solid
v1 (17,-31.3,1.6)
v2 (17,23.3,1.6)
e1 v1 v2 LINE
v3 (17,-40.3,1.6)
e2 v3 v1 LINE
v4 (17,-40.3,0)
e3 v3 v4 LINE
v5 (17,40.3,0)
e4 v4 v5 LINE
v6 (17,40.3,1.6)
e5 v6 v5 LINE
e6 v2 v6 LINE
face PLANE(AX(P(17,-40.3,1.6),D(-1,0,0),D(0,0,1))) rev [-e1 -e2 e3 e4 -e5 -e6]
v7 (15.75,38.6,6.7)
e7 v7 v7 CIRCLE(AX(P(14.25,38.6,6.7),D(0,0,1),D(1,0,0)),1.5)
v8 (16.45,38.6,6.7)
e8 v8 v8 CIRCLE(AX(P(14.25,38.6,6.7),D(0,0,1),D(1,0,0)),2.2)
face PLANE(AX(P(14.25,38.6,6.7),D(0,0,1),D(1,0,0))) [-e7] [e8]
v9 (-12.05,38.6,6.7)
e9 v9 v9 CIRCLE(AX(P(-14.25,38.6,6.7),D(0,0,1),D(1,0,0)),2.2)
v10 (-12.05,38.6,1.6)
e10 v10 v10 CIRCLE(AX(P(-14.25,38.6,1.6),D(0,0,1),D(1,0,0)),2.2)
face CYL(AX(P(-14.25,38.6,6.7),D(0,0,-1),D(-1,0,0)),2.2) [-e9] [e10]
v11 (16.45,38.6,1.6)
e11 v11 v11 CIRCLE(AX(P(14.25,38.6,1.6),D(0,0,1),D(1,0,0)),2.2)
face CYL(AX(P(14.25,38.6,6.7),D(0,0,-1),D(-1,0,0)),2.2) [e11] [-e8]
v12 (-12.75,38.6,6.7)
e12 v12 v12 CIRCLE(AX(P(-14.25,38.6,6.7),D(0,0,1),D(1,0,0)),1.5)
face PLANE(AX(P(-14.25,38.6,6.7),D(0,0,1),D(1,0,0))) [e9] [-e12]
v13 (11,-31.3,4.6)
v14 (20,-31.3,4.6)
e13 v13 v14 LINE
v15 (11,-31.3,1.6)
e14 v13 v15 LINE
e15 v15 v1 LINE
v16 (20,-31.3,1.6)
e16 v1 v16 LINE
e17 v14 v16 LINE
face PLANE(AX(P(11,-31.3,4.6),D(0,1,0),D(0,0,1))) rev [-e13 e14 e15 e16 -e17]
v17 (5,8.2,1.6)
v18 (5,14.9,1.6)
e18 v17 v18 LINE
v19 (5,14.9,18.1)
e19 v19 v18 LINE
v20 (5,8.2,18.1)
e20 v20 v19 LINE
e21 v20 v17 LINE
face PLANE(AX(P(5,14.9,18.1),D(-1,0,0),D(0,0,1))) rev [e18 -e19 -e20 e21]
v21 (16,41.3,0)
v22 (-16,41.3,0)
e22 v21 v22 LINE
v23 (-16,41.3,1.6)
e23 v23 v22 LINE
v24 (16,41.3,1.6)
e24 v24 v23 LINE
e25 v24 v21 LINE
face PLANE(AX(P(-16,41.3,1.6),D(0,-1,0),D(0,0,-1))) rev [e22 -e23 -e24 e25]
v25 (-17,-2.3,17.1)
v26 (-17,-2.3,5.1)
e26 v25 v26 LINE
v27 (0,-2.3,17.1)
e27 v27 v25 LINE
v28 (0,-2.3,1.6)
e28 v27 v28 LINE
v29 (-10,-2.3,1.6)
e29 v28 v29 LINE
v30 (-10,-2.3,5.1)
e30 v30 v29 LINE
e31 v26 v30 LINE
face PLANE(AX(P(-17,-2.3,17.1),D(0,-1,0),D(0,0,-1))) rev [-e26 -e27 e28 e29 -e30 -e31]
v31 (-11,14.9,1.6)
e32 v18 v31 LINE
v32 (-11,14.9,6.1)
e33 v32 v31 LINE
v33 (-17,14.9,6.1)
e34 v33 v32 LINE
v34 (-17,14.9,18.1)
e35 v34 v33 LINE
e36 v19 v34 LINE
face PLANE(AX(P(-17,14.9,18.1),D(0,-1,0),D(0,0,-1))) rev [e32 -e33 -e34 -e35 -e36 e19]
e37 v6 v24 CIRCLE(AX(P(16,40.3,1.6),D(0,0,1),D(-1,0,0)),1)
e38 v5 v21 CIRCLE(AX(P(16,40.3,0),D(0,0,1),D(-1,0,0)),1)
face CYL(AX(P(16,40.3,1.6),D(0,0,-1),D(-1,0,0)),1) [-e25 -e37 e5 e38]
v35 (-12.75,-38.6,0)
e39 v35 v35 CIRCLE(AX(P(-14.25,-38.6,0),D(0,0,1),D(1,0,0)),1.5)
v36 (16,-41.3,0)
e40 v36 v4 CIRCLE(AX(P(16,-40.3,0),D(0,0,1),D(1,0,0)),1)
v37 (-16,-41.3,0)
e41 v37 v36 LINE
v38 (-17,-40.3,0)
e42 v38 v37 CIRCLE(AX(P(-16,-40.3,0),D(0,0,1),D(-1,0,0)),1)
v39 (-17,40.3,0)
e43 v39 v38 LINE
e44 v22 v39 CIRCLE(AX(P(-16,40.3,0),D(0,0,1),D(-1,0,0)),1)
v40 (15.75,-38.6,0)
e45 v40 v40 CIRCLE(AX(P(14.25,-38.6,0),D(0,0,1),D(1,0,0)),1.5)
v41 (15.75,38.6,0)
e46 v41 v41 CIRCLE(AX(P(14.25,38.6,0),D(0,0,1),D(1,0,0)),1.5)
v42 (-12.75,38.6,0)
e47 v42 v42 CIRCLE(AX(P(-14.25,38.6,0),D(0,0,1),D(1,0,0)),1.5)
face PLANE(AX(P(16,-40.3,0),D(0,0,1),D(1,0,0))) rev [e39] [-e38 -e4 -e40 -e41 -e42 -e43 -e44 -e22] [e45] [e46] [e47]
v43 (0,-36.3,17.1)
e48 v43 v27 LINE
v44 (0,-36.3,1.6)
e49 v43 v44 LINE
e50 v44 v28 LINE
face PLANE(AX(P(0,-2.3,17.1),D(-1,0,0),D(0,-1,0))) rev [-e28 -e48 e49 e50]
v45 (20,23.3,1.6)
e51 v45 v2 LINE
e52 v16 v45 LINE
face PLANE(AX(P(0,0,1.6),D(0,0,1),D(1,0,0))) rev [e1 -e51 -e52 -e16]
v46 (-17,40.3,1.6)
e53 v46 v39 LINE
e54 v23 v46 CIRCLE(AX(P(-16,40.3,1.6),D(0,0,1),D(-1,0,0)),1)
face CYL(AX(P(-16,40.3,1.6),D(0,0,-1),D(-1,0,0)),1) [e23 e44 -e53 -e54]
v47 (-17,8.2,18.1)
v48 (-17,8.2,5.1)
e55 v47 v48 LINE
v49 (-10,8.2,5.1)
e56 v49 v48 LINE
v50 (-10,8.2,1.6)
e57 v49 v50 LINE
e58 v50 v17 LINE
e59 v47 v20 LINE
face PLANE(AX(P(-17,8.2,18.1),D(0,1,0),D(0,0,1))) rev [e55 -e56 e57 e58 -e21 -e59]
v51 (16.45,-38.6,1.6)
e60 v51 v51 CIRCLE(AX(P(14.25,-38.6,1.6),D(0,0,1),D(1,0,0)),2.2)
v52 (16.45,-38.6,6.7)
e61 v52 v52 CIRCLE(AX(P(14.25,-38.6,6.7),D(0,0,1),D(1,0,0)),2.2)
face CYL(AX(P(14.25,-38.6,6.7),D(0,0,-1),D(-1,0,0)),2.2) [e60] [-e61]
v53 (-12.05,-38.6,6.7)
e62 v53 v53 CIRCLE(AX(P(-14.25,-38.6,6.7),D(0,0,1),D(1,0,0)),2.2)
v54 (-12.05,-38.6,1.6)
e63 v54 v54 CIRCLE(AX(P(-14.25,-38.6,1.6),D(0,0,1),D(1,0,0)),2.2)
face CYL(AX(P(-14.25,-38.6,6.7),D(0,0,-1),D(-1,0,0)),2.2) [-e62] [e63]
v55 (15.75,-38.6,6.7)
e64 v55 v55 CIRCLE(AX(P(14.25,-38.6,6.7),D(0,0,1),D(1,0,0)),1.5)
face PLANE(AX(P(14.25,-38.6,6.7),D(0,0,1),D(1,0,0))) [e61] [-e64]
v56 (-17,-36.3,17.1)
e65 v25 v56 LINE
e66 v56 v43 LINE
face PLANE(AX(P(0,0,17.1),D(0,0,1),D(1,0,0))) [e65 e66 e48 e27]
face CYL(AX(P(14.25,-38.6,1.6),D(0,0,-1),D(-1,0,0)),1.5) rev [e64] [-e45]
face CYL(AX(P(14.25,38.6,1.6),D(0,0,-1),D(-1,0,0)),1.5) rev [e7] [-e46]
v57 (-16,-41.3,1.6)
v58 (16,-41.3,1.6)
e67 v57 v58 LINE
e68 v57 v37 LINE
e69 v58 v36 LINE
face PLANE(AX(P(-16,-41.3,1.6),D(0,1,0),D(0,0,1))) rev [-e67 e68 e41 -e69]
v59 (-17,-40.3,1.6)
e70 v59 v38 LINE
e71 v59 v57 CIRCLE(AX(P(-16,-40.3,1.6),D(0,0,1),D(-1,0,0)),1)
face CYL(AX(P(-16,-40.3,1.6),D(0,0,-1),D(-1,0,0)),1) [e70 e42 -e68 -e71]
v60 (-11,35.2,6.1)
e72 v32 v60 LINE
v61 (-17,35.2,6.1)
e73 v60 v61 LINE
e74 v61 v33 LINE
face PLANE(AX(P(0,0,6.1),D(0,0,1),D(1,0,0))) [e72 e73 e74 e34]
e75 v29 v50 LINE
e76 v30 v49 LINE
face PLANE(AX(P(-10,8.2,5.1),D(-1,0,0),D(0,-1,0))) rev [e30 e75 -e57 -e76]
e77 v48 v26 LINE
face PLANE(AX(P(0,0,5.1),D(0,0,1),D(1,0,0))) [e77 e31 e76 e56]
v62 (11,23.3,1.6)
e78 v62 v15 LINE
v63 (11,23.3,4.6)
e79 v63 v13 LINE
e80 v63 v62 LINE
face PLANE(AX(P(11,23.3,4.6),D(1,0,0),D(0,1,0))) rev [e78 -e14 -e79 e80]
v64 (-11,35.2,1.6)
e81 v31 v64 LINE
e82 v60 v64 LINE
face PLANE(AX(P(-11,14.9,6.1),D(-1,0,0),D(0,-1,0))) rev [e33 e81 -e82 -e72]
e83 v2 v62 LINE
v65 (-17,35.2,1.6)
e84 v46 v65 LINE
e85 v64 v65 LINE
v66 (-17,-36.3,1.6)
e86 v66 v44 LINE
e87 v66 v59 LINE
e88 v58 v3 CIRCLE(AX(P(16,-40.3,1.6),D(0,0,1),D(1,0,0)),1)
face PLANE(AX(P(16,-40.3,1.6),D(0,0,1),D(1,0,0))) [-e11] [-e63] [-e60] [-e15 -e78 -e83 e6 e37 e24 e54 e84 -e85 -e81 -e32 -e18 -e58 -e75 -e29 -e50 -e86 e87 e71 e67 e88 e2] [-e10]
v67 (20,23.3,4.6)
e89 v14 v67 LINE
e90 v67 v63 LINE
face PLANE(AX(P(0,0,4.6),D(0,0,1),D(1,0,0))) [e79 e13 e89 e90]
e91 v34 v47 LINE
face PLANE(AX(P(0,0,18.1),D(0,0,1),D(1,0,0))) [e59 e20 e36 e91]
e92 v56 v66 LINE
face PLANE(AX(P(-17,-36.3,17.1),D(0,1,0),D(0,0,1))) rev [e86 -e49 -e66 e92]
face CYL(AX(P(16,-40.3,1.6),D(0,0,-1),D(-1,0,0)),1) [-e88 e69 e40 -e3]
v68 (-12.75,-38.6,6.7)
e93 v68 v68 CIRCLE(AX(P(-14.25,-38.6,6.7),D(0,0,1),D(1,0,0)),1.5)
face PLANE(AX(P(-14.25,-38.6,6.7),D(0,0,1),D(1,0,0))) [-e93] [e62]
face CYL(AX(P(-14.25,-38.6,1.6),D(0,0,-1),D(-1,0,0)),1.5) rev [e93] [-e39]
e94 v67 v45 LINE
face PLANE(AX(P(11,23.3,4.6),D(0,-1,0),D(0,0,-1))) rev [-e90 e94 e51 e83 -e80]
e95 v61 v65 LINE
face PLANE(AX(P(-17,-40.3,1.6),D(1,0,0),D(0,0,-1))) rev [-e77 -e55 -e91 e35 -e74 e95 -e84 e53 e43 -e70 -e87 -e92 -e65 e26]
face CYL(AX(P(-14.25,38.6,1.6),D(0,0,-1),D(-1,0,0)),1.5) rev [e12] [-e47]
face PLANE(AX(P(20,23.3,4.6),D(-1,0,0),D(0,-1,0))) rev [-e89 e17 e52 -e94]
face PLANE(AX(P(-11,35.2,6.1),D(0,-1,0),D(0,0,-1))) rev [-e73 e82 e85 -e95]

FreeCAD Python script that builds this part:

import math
import FreeCAD as App
import Part
import Sketcher

doc = App.newDocument("Part")
body = doc.addObject("PartDesign::Body", "Body")

sketch1 = doc.addObject("Sketcher::SketchObject", "Sketch")
body.addObject(sketch1)
sketch1.AttachmentSupport = (doc.XY_Plane, [""])
sketch1.MapMode = "FlatFace"
sketch1.addGeometry([
    Part.LineSegment(App.Vector(-16, -41.3, 0), App.Vector(16, -41.3, 0)),
    Part.ArcOfCircle(Part.Circle(App.Vector(16, -40.3, 0), App.Vector(0, 0, 1), 1), math.radians(-90), math.radians(0)),
    Part.LineSegment(App.Vector(17, -40.3, 0), App.Vector(17, 40.3, 0)),
    Part.ArcOfCircle(Part.Circle(App.Vector(16, 40.3, 0), App.Vector(0, 0, 1), 1), math.radians(0), math.radians(90)),
    Part.LineSegment(App.Vector(16, 41.3, 0), App.Vector(-16, 41.3, 0)),
    Part.ArcOfCircle(Part.Circle(App.Vector(-16, 40.3, 0), App.Vector(0, 0, 1), 1), math.radians(90), math.radians(180)),
    Part.LineSegment(App.Vector(-17, 40.3, 0), App.Vector(-17, -40.3, 0)),
    Part.ArcOfCircle(Part.Circle(App.Vector(-16, -40.3, 0), App.Vector(0, 0, 1), 1), math.radians(-180), math.radians(-90)),
    Part.Circle(App.Vector(-14.25, -38.6, 0), App.Vector(0, 0, 1), 1.5),
    Part.Circle(App.Vector(14.25, -38.6, 0), App.Vector(0, 0, 1), 1.5),
    Part.Circle(App.Vector(-14.25, 38.6, 0), App.Vector(0, 0, 1), 1.5),
    Part.Circle(App.Vector(14.25, 38.6, 0), App.Vector(0, 0, 1), 1.5),
], False)
sketch1.addConstraint([
    Sketcher.Constraint("Tangent", 0, 2, 1, 1),
    Sketcher.Constraint("Tangent", 1, 2, 2, 1),
    Sketcher.Constraint("Tangent", 2, 2, 3, 1),
    Sketcher.Constraint("Tangent", 3, 2, 4, 1),
    Sketcher.Constraint("Tangent", 4, 2, 5, 1),
    Sketcher.Constraint("Tangent", 5, 2, 6, 1),
    Sketcher.Constraint("Tangent", 6, 2, 7, 1),
    Sketcher.Constraint("Tangent", 7, 2, 0, 1),
    Sketcher.Constraint("Horizontal", 0),
    Sketcher.Constraint("Vertical", 2),
    Sketcher.Constraint("Horizontal", 4),
    Sketcher.Constraint("Vertical", 6),
    Sketcher.Constraint("Equal", 1, 3),
    Sketcher.Constraint("Equal", 3, 5),
    Sketcher.Constraint("Equal", 5, 7),
    Sketcher.Constraint("Equal", 8, 9),
    Sketcher.Constraint("Equal", 9, 10),
    Sketcher.Constraint("Equal", 10, 11),
    Sketcher.Constraint("Symmetric", 1, 3, 5, 3, -1, 1),
    Sketcher.Constraint("Symmetric", 9, 3, 10, 3, -1, 1),
    Sketcher.Constraint("Symmetric", 8, 3, 11, 3, -1, 1),
    Sketcher.Constraint("Symmetric", 8, 3, 9, 3, -2),
    Sketcher.Constraint("Diameter", 8, 3.0),
    Sketcher.Constraint("Radius", 1, 1.0),
    Sketcher.Constraint("DistanceX", 0, 1, 0, 2, 32.0),
    Sketcher.Constraint("DistanceY", 2, 1, 2, 2, 80.6),
    Sketcher.Constraint("DistanceY", 8, 3, -1, 1, 38.6),
    Sketcher.Constraint("DistanceX", 8, 3, 9, 3, 28.5),
])
pad1 = doc.addObject("PartDesign::Pad", "Pad")
body.addObject(pad1)
pad1.Profile = sketch1
pad1.Length = 1.6

sketch2 = doc.addObject("Sketcher::SketchObject", "Sketch001")
body.addObject(sketch2)
sketch2.AttachmentSupport = (doc.XY_Plane, [""])
sketch2.MapMode = "FlatFace"
sketch2.AttachmentOffset = App.Placement(App.Vector(0, 0, 1.6), App.Rotation())
sketch2.addGeometry([
    Part.LineSegment(App.Vector(11, 23.3, 0), App.Vector(11, -31.3, 0)),
    Part.LineSegment(App.Vector(11, -31.3, 0), App.Vector(20, -31.3, 0)),
    Part.LineSegment(App.Vector(20, -31.3, 0), App.Vector(20, 23.3, 0)),
    Part.LineSegment(App.Vector(20, 23.3, 0), App.Vector(11, 23.3, 0)),
], False)
sketch2.addConstraint([
    Sketcher.Constraint("Coincident", 0, 2, 1, 1),
    Sketcher.Constraint("Coincident", 1, 2, 2, 1),
    Sketcher.Constraint("Coincident", 2, 2, 3, 1),
    Sketcher.Constraint("Coincident", 3, 2, 0, 1),
    Sketcher.Constraint("Vertical", 0),
    Sketcher.Constraint("Horizontal", 1),
    Sketcher.Constraint("Vertical", 2),
    Sketcher.Constraint("Horizontal", 3),
    Sketcher.Constraint("DistanceX", 1, 1, 1, 2, 9.0),
    Sketcher.Constraint("DistanceY", 0, 2, 0, 1, 54.6),
    Sketcher.Constraint("DistanceX", -1, 1, 0, 2, 11.0),
    Sketcher.Constraint("DistanceY", 0, 2, -1, 1, 31.3),
])
pad2 = doc.addObject("PartDesign::Pad", "Pad001")
body.addObject(pad2)
pad2.Profile = sketch2
pad2.Length = 3

sketch3 = doc.addObject("Sketcher::SketchObject", "Sketch002")
body.addObject(sketch3)
sketch3.AttachmentSupport = (doc.XY_Plane, [""])
sketch3.MapMode = "FlatFace"
sketch3.AttachmentOffset = App.Placement(App.Vector(0, 0, 1.6), App.Rotation())
sketch3.addGeometry([
    Part.LineSegment(App.Vector(-17, -2.3, 0), App.Vector(-17, -36.3, 0)),
    Part.LineSegment(App.Vector(-17, -36.3, 0), App.Vector(0, -36.3, 0)),
    Part.LineSegment(App.Vector(0, -36.3, 0), App.Vector(0, -2.3, 0)),
    Part.LineSegment(App.Vector(0, -2.3, 0), App.Vector(-17, -2.3, 0)),
], False)
sketch3.addConstraint([
    Sketcher.Constraint("Coincident", 0, 2, 1, 1),
    Sketcher.Constraint("Coincident", 1, 2, 2, 1),
    Sketcher.Constraint("Coincident", 2, 2, 3, 1),
    Sketcher.Constraint("Coincident", 3, 2, 0, 1),
    Sketcher.Constraint("Vertical", 0),
    Sketcher.Constraint("Horizontal", 1),
    Sketcher.Constraint("Vertical", 2),
    Sketcher.Constraint("Horizontal", 3),
    Sketcher.Constraint("PointOnObject", 1, 2, -2),
    Sketcher.Constraint("DistanceX", 1, 1, 1, 2, 17.0),
    Sketcher.Constraint("DistanceY", 0, 2, 0, 1, 34.0),
    Sketcher.Constraint("DistanceY", 0, 2, -1, 1, 36.3),
])
pad3 = doc.addObject("PartDesign::Pad", "Pad002")
body.addObject(pad3)
pad3.Profile = sketch3
pad3.Length = 15.5

sketch4 = doc.addObject("Sketcher::SketchObject", "Sketch003")
body.addObject(sketch4)
sketch4.AttachmentSupport = (doc.XY_Plane, [""])
sketch4.MapMode = "FlatFace"
sketch4.AttachmentOffset = App.Placement(App.Vector(0, 0, 1.6), App.Rotation())
sketch4.addGeometry([
    Part.LineSegment(App.Vector(-17, 8.2, 0), App.Vector(-17, -2.3, 0)),
    Part.LineSegment(App.Vector(-17, -2.3, 0), App.Vector(-10, -2.3, 0)),
    Part.LineSegment(App.Vector(-10, -2.3, 0), App.Vector(-10, 8.2, 0)),
    Part.LineSegment(App.Vector(-10, 8.2, 0), App.Vector(-17, 8.2, 0)),
], False)
sketch4.addConstraint([
    Sketcher.Constraint("Coincident", 0, 2, 1, 1),
    Sketcher.Constraint("Coincident", 1, 2, 2, 1),
    Sketcher.Constraint("Coincident", 2, 2, 3, 1),
    Sketcher.Constraint("Coincident", 3, 2, 0, 1),
    Sketcher.Constraint("Vertical", 0),
    Sketcher.Constraint("Horizontal", 1),
    Sketcher.Constraint("Vertical", 2),
    Sketcher.Constraint("Horizontal", 3),
    Sketcher.Constraint("DistanceX", 1, 1, 1, 2, 7.0),
    Sketcher.Constraint("DistanceY", 0, 2, 0, 1, 10.5),
    Sketcher.Constraint("DistanceX", 0, 2, -1, 1, 17.0),
    Sketcher.Constraint("DistanceY", 0, 2, -1, 1, 2.3),
])
pad4 = doc.addObject("PartDesign::Pad", "Pad003")
body.addObject(pad4)
pad4.Profile = sketch4
pad4.Length = 3.5

sketch5 = doc.addObject("Sketcher::SketchObject", "Sketch004")
body.addObject(sketch5)
sketch5.AttachmentSupport = (doc.XY_Plane, [""])
sketch5.MapMode = "FlatFace"
sketch5.AttachmentOffset = App.Placement(App.Vector(0, 0, 1.6), App.Rotation())
sketch5.addGeometry([
    Part.Circle(App.Vector(-14.25, 38.6, 0), App.Vector(0, 0, 1), 2.2),
    Part.Circle(App.Vector(-14.25, 38.6, 0), App.Vector(0, 0, 1), 1.5),
    Part.Circle(App.Vector(14.25, 38.6, 0), App.Vector(0, 0, 1), 2.2),
    Part.Circle(App.Vector(14.25, 38.6, 0), App.Vector(0, 0, 1), 1.5),
    Part.Circle(App.Vector(-14.25, -38.6, 0), App.Vector(0, 0, 1), 2.2),
    Part.Circle(App.Vector(-14.25, -38.6, 0), App.Vector(0, 0, 1), 1.5),
    Part.Circle(App.Vector(14.25, -38.6, 0), App.Vector(0, 0, 1), 2.2),
    Part.Circle(App.Vector(14.25, -38.6, 0), App.Vector(0, 0, 1), 1.5),
], False)
sketch5.addConstraint([
    Sketcher.Constraint("Coincident", 1, 3, 0, 3),
    Sketcher.Constraint("Coincident", 3, 3, 2, 3),
    Sketcher.Constraint("Coincident", 5, 3, 4, 3),
    Sketcher.Constraint("Coincident", 7, 3, 6, 3),
    Sketcher.Constraint("Equal", 0, 2),
    Sketcher.Constraint("Equal", 1, 3),
    Sketcher.Constraint("Equal", 2, 4),
    Sketcher.Constraint("Equal", 3, 5),
    Sketcher.Constraint("Equal", 4, 6),
    Sketcher.Constraint("Equal", 5, 7),
    Sketcher.Constraint("Symmetric", 2, 3, 4, 3, -1, 1),
    Sketcher.Constraint("Symmetric", 0, 3, 6, 3, -1, 1),
    Sketcher.Constraint("Symmetric", 0, 3, 2, 3, -2),
    Sketcher.Constraint("Diameter", 1, 3.0),
    Sketcher.Constraint("Diameter", 0, 4.4),
    Sketcher.Constraint("DistanceY", -1, 1, 0, 3, 38.6),
    Sketcher.Constraint("DistanceX", 0, 3, 2, 3, 28.5),
])
pad5 = doc.addObject("PartDesign::Pad", "Pad004")
body.addObject(pad5)
pad5.Profile = sketch5
pad5.Length = 5.1

sketch6 = doc.addObject("Sketcher::SketchObject", "Sketch005")
body.addObject(sketch6)
sketch6.AttachmentSupport = (doc.XY_Plane, [""])
sketch6.MapMode = "FlatFace"
sketch6.AttachmentOffset = App.Placement(App.Vector(0, 0, 1.6), App.Rotation())
sketch6.addGeometry([
    Part.LineSegment(App.Vector(-17, 14.9, 0), App.Vector(-17, 8.2, 0)),
    Part.LineSegment(App.Vector(-17, 8.2, 0), App.Vector(5, 8.2, 0)),
    Part.LineSegment(App.Vector(5, 8.2, 0), App.Vector(5, 14.9, 0)),
    Part.LineSegment(App.Vector(5, 14.9, 0), App.Vector(-17, 14.9, 0)),
], False)
sketch6.addConstraint([
    Sketcher.Constraint("Coincident", 0, 2, 1, 1),
    Sketcher.Constraint("Coincident", 1, 2, 2, 1),
    Sketcher.Constraint("Coincident", 2, 2, 3, 1),
    Sketcher.Constraint("Coincident", 3, 2, 0, 1),
    Sketcher.Constraint("Vertical", 0),
    Sketcher.Constraint("Horizontal", 1),
    Sketcher.Constraint("Vertical", 2),
    Sketcher.Constraint("Horizontal", 3),
    Sketcher.Constraint("DistanceX", 1, 1, 1, 2, 22.0),
    Sketcher.Constraint("DistanceY", 0, 2, 0, 1, 6.7),
    Sketcher.Constraint("DistanceX", 0, 2, -1, 1, 17.0),
    Sketcher.Constraint("DistanceY", -1, 1, 0, 2, 8.2),
])
pad6 = doc.addObject("PartDesign::Pad", "Pad005")
body.addObject(pad6)
pad6.Profile = sketch6
pad6.Length = 16.5

sketch7 = doc.addObject("Sketcher::SketchObject", "Sketch006")
body.addObject(sketch7)
sketch7.AttachmentSupport = (doc.XY_Plane, [""])
sketch7.MapMode = "FlatFace"
sketch7.AttachmentOffset = App.Placement(App.Vector(0, 0, 1.6), App.Rotation())
sketch7.addGeometry([
    Part.LineSegment(App.Vector(-17, 35.2, 0), App.Vector(-17, 14.9, 0)),
    Part.LineSegment(App.Vector(-17, 14.9, 0), App.Vector(-11, 14.9, 0)),
    Part.LineSegment(App.Vector(-11, 14.9, 0), App.Vector(-11, 35.2, 0)),
    Part.LineSegment(App.Vector(-11, 35.2, 0), App.Vector(-17, 35.2, 0)),
], False)
sketch7.addConstraint([
    Sketcher.Constraint("Coincident", 0, 2, 1, 1),
    Sketcher.Constraint("Coincident", 1, 2, 2, 1),
    Sketcher.Constraint("Coincident", 2, 2, 3, 1),
    Sketcher.Constraint("Coincident", 3, 2, 0, 1),
    Sketcher.Constraint("Vertical", 0),
    Sketcher.Constraint("Horizontal", 1),
    Sketcher.Constraint("Vertical", 2),
    Sketcher.Constraint("Horizontal", 3),
    Sketcher.Constraint("DistanceX", 1, 1, 1, 2, 6.0),
    Sketcher.Constraint("DistanceY", 0, 2, 0, 1, 20.3),
    Sketcher.Constraint("DistanceX", 0, 2, -1, 1, 17.0),
    Sketcher.Constraint("DistanceY", -1, 1, 0, 2, 14.9),
])
pad7 = doc.addObject("PartDesign::Pad", "Pad006")
body.addObject(pad7)
pad7.Profile = sketch7
pad7.Length = 4.5

doc.recompute()
